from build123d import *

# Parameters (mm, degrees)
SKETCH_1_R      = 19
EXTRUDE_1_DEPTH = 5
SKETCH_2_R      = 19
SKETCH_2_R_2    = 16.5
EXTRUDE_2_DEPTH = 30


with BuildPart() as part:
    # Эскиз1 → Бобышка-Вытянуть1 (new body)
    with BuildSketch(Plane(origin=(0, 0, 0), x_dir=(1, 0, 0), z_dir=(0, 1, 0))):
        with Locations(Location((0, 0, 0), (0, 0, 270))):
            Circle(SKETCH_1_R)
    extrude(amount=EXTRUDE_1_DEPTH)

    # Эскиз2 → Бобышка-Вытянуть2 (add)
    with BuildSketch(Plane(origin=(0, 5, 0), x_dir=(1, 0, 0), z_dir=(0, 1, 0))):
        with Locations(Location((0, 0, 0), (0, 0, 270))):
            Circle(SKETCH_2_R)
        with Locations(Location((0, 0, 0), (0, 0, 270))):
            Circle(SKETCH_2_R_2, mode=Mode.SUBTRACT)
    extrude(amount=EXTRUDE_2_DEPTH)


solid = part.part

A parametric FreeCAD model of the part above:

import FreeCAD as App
import Part
import Sketcher

V = App.Vector
Q = App.Units.Quantity

doc = App.newDocument("Part")
body = doc.addObject("PartDesign::Body", "Body")

sketch1 = doc.addObject("Sketcher::SketchObject", "Sketch")
body.addObject(sketch1)
sketch1.AttachmentSupport = (doc.XZ_Plane, [""])
sketch1.MapMode = "FlatFace"
sketch1.addGeometry(Part.Circle(V(0, 0, 0), V(0, 0, 1), 19), False)
sketch1.addConstraint(Sketcher.Constraint("Coincident", 0, 3, -1, 1))
sketch1.addConstraint(Sketcher.Constraint("Diameter", 0, Q("38 mm")))
pad1 = doc.addObject("PartDesign::Pad", "Pad")
body.addObject(pad1)
pad1.Profile = sketch1
pad1.Length = 5
pad1.Reversed = True

sketch2 = doc.addObject("Sketcher::SketchObject", "Sketch001")
body.addObject(sketch2)
sketch2.AttachmentSupport = (doc.XZ_Plane, [""])
sketch2.MapMode = "FlatFace"
sketch2.AttachmentOffset = App.Placement(V(0, 0, -5), App.Rotation())
sketch2.addGeometry(Part.Circle(V(0, 0, 0), V(0, 0, 1), 19), False)
sketch2.addGeometry(Part.Circle(V(0, 0, 0), V(0, 0, 1), 16.5), False)
sketch2.addConstraint(Sketcher.Constraint("Coincident", 0, 3, -1, 1))
sketch2.addConstraint(Sketcher.Constraint("Coincident", 1, 3, -1, 1))
sketch2.addConstraint(Sketcher.Constraint("Diameter", 0, Q("38 mm")))
sketch2.addConstraint(Sketcher.Constraint("Diameter", 1, Q("33 mm")))
pad2 = doc.addObject("PartDesign::Pad", "Pad001")
body.addObject(pad2)
pad2.Profile = sketch2
pad2.Length = 30
pad2.Reversed = True

doc.recompute()
